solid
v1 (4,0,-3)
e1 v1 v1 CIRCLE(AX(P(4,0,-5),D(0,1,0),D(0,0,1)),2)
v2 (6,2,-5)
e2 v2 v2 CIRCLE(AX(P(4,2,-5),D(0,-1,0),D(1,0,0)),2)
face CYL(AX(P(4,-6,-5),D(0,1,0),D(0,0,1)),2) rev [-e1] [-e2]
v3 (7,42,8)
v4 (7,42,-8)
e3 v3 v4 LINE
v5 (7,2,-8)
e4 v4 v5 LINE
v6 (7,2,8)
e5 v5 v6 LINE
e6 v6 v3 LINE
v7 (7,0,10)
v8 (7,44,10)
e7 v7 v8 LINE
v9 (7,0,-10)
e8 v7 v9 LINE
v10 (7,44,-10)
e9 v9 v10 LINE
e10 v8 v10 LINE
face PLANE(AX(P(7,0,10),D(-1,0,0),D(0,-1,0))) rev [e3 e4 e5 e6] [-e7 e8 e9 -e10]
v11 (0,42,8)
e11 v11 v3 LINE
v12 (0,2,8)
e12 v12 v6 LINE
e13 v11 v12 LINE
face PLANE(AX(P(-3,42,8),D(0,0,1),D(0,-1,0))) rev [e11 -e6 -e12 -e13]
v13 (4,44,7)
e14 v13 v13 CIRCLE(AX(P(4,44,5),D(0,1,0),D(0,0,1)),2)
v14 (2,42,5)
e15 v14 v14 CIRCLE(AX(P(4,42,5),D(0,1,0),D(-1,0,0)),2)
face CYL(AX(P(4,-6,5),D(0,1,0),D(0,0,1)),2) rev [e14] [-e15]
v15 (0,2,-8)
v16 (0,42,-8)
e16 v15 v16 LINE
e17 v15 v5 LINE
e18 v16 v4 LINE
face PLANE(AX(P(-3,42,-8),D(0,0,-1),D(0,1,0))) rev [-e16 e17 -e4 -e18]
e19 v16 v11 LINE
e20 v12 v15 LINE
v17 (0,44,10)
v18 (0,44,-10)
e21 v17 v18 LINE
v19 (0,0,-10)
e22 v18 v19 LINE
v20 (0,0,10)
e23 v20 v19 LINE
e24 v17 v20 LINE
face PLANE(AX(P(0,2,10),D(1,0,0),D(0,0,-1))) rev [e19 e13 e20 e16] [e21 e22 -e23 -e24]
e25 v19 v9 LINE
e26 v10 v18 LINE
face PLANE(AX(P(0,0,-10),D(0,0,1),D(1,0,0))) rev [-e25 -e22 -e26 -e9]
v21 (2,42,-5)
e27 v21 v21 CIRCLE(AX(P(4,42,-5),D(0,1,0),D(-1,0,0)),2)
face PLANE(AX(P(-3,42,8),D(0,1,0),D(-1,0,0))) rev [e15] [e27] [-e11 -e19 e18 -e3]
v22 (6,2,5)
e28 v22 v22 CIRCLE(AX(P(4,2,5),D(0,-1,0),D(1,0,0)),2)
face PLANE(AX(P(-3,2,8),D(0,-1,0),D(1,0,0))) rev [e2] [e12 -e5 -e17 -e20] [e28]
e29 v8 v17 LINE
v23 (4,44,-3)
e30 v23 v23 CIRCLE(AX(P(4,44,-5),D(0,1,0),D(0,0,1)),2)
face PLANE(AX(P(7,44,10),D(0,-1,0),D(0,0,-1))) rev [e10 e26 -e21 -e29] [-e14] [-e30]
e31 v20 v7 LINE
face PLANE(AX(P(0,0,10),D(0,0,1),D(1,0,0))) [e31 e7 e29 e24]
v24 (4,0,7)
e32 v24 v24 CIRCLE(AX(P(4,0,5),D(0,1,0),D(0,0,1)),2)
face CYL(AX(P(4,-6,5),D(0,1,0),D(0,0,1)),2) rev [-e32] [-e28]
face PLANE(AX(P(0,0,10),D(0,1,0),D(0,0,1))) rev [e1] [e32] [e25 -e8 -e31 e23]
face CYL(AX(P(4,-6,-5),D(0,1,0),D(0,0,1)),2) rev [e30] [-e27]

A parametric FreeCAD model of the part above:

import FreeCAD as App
import Part
import Sketcher

V = App.Vector

doc = App.newDocument("Part")
body = doc.addObject("PartDesign::Body", "Body")

sketch1 = body.newObject("Sketcher::SketchObject", "Sketch")
sketch1.AttachmentSupport = (doc.getObject("XY_Plane"), [""])
sketch1.MapMode = "FlatFace"
sketch1.addGeometry([
    Part.LineSegment(V(0, 0, 0), V(7, 0, 0)),
    Part.LineSegment(V(7, 0, 0), V(7, 44, 0)),
    Part.LineSegment(V(7, 44, 0), V(0, 44, 0)),
    Part.LineSegment(V(0, 44, 0), V(0, 0, 0)),
], False)
sketch1.addConstraint([
    Sketcher.Constraint("Coincident", 0, 2, 1, 1),
    Sketcher.Constraint("Coincident", 1, 2, 2, 1),
    Sketcher.Constraint("Coincident", 2, 2, 3, 1),
    Sketcher.Constraint("Coincident", 3, 2, 0, 1),
    Sketcher.Constraint("Horizontal", 0),
    Sketcher.Constraint("Vertical", 1),
    Sketcher.Constraint("Horizontal", 2),
    Sketcher.Constraint("Vertical", 3),
    Sketcher.Constraint("Coincident", 3, 2, -1, 1),
    Sketcher.Constraint("DistanceX", 0, 1, 0, 2, 7.0),
    Sketcher.Constraint("DistanceY", 1, 1, 1, 2, 44.0),
])
pad1 = body.newObject("PartDesign::Pad", "Pad")
pad1.Profile = sketch1
pad1.Length = 20
pad1.Midplane = True

sketch2 = body.newObject("Sketcher::SketchObject", "Sketch001")
sketch2.AttachmentSupport = (doc.getObject("YZ_Plane"), [""])
sketch2.MapMode = "FlatFace"
sketch2.AttachmentOffset = App.Placement(V(0, 0, 7), App.Rotation())
sketch2.addGeometry([
    Part.LineSegment(V(42, 8, 0), V(2, 8, 0)),
    Part.LineSegment(V(2, 8, 0), V(2, -8, 0)),
    Part.LineSegment(V(2, -8, 0), V(42, -8, 0)),
    Part.LineSegment(V(42, -8, 0), V(42, 8, 0)),
], False)
sketch2.addConstraint([
    Sketcher.Constraint("Coincident", 0, 2, 1, 1),
    Sketcher.Constraint("Coincident", 1, 2, 2, 1),
    Sketcher.Constraint("Coincident", 2, 2, 3, 1),
    Sketcher.Constraint("Coincident", 3, 2, 0, 1),
    Sketcher.Constraint("Horizontal", 0),
    Sketcher.Constraint("Vertical", 1),
    Sketcher.Constraint("Horizontal", 2),
    Sketcher.Constraint("Vertical", 3),
    Sketcher.Constraint("DistanceX", 0, 2, 0, 1, 40.0),
    Sketcher.Constraint("DistanceY", 1, 2, 1, 1, 16.0),
    Sketcher.Constraint("DistanceX", -1, 1, 0, 2, 2.0),
    Sketcher.Constraint("DistanceY", -1, 1, 0, 2, 8.0),
])
pocket1 = body.newObject("PartDesign::Pocket", "Pocket")
pocket1.Profile = sketch2
pocket1.Length = 20
pocket1.Midplane = True

sketch3 = body.newObject("Sketcher::SketchObject", "Sketch002")
sketch3.AttachmentSupport = (doc.getObject("XZ_Plane"), [""])
sketch3.MapMode = "FlatFace"
sketch3.AttachmentOffset = App.Placement(V(0, 0, -44), App.Rotation())
sketch3.addGeometry([
    Part.Circle(V(4, -5, 0), V(0, 0, 1), 2),
    Part.Circle(V(4, 5, 0), V(0, 0, 1), 2),
], False)
sketch3.addConstraint([
    Sketcher.Constraint("Equal", 0, 1),
    Sketcher.Constraint("Symmetric", 0, 3, 1, 3, -1),
    Sketcher.Constraint("Diameter", 0, 4.0),
    Sketcher.Constraint("DistanceX", -1, 1, 0, 3, 4.0),
    Sketcher.Constraint("DistanceY", 0, 3, -1, 1, 5.0),
])
pocket2 = body.newObject("PartDesign::Pocket", "Pocket001")
pocket2.Profile = sketch3
pocket2.Length = 50
pocket2.Reversed = True

doc.recompute()
